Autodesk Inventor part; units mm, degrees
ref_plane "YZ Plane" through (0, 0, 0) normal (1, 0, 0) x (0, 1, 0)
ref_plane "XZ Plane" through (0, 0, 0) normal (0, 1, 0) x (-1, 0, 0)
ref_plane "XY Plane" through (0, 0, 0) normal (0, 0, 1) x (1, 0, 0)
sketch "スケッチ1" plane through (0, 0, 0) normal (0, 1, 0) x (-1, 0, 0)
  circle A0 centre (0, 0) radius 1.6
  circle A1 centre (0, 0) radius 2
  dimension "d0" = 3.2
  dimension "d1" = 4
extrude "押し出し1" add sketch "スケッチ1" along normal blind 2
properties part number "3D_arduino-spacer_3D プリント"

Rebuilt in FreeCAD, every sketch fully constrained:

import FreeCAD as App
import Part
import Sketcher
Q = App.Units.Quantity

doc = App.newDocument("Part")
body = doc.addObject("PartDesign::Body", "Body")

# Sketch on XZ plane
sketch1 = doc.addObject("Sketcher::SketchObject", "Sketch")
body.addObject(sketch1)
sketch1.AttachmentSupport = (doc.XZ_Plane, [""])
sketch1.MapMode = "FlatFace"
sketch1.addGeometry(Part.Circle(App.Vector(0, 0, 0), App.Vector(0, 0, 1), 2), False)
sketch1.addGeometry(Part.Circle(App.Vector(0, 0, 0), App.Vector(0, 0, 1), 1.6), False)
sketch1.addConstraint(Sketcher.Constraint("Coincident", 0, 3, -1, 1))
sketch1.addConstraint(Sketcher.Constraint("Coincident", 1, 3, -1, 1))
sketch1.addConstraint(Sketcher.Constraint("Diameter", 0, Q("4 mm")))
sketch1.addConstraint(Sketcher.Constraint("Diameter", 1, Q("3.2 mm")))
pad1 = doc.addObject("PartDesign::Pad", "Pad")
body.addObject(pad1)
pad1.Profile = sketch1
pad1.Length = 2
pad1.Reversed = True

doc.recompute()
